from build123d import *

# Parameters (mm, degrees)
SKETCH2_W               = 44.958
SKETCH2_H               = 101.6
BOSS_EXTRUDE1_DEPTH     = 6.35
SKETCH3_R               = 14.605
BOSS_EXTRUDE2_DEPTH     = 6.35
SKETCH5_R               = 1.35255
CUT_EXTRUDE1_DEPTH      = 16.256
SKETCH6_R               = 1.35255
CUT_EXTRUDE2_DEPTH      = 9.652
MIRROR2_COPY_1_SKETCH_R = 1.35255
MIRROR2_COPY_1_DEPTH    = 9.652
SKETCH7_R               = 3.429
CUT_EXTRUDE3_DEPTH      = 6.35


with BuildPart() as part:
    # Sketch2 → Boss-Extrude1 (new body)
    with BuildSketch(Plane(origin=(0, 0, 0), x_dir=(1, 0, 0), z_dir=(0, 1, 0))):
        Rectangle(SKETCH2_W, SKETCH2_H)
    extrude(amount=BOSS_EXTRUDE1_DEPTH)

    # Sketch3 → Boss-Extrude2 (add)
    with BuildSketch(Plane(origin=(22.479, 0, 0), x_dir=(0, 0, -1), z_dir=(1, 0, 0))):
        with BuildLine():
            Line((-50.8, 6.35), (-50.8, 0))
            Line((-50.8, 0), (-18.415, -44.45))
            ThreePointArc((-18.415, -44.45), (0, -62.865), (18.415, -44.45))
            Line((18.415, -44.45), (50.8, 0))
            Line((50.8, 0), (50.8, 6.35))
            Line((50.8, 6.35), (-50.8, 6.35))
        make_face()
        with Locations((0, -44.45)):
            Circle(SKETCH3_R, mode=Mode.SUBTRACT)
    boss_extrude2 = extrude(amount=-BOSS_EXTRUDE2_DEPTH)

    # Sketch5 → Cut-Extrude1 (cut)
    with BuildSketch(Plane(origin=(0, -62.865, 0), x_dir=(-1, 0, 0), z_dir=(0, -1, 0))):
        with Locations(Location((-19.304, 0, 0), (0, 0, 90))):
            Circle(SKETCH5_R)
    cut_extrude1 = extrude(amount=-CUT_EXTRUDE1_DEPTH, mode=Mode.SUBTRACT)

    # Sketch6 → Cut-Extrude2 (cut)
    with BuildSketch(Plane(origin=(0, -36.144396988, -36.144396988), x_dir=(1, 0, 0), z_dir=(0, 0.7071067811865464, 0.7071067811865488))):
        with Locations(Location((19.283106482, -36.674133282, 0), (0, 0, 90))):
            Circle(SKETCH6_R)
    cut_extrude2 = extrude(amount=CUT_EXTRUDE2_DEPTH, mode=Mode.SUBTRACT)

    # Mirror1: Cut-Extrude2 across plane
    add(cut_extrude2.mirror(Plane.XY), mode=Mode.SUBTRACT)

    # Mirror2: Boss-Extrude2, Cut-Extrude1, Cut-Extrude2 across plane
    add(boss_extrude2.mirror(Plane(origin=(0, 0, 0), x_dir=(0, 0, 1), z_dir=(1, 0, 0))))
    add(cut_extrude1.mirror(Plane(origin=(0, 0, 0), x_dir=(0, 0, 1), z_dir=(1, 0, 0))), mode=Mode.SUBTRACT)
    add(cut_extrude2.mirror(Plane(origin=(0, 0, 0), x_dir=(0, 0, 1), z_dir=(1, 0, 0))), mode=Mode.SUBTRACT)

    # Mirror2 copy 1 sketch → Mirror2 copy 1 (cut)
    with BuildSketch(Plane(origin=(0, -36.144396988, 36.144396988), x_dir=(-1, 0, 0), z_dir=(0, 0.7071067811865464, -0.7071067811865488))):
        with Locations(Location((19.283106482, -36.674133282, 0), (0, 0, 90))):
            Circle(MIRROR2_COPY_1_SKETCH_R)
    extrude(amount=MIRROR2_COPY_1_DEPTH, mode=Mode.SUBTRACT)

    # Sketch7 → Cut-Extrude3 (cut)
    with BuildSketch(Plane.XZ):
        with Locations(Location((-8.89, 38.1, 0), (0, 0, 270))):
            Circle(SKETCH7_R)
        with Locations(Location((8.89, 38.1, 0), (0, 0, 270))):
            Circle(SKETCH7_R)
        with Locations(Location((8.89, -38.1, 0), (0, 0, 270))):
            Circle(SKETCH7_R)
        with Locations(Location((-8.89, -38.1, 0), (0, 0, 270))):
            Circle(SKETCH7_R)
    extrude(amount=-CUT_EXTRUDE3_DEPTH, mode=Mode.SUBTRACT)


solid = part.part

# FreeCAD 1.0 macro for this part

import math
import FreeCAD as App
import Part
import Sketcher
Q = App.Units.Quantity

doc = App.newDocument("Part")
body = doc.addObject("PartDesign::Body", "Body")

sketch1 = body.newObject("Sketcher::SketchObject", "Sketch")
sketch1.AttachmentSupport = (doc.getObject("XZ_Plane"), [""])
sketch1.MapMode = "FlatFace"
sketch1.addGeometry(Part.LineSegment(App.Vector(-22, -51, 0), App.Vector(-22, 51, 0)), False)
sketch1.addGeometry(Part.LineSegment(App.Vector(-22, 51, 0), App.Vector(22, 51, 0)), False)
sketch1.addGeometry(Part.LineSegment(App.Vector(22, 51, 0), App.Vector(22, -51, 0)), False)
sketch1.addGeometry(Part.LineSegment(App.Vector(22, -51, 0), App.Vector(-22, -51, 0)), False)
sketch1.addConstraint(Sketcher.Constraint("Coincident", 0, 2, 1, 1))
sketch1.addConstraint(Sketcher.Constraint("Coincident", 1, 2, 2, 1))
sketch1.addConstraint(Sketcher.Constraint("Coincident", 2, 2, 3, 1))
sketch1.addConstraint(Sketcher.Constraint("Coincident", 3, 2, 0, 1))
sketch1.addConstraint(Sketcher.Constraint("Vertical", 0))
sketch1.addConstraint(Sketcher.Constraint("Horizontal", 1))
sketch1.addConstraint(Sketcher.Constraint("Vertical", 2))
sketch1.addConstraint(Sketcher.Constraint("Horizontal", 3))
sketch1.addConstraint(Sketcher.Constraint("Symmetric", 0, 2, 2, 2, -1, 1))
sketch1.addConstraint(Sketcher.Constraint("DistanceY", 0, 1, 0, 2, Q("4 in")))
sketch1.addConstraint(Sketcher.Constraint("DistanceX", 1, 1, 1, 2, Q("1.77 in")))
pad1 = body.newObject("PartDesign::Pad", "Pad")
pad1.Profile = sketch1
pad1.Length = Q("0.25 in")
pad1.Reversed = True

sketch2 = body.newObject("Sketcher::SketchObject", "Sketch001")
sketch2.AttachmentSupport = (doc.getObject("YZ_Plane"), [""])
sketch2.MapMode = "FlatFace"
sketch2.AttachmentOffset = App.Placement(App.Vector(0, 0, 0.885 * 25.4), App.Rotation())
sketch2.addGeometry(Part.LineSegment(App.Vector(6, 51, 0), App.Vector(0, 51, 0)), False)
sketch2.addGeometry(Part.LineSegment(App.Vector(0, 51, 0), App.Vector(-44, 18, 0)), False)
sketch2.addGeometry(Part.ArcOfCircle(Part.Circle(App.Vector(-44, 0, 0), App.Vector(0, 0, 1), 18), math.radians(90), math.radians(270)), False)
sketch2.addGeometry(Part.LineSegment(App.Vector(-44, -18, 0), App.Vector(0, -51, 0)), False)
sketch2.addGeometry(Part.LineSegment(App.Vector(0, -51, 0), App.Vector(6, -51, 0)), False)
sketch2.addGeometry(Part.LineSegment(App.Vector(6, -51, 0), App.Vector(6, 51, 0)), False)
sketch2.addGeometry(Part.Circle(App.Vector(-44, 0, 0), App.Vector(0, 0, 1), 15), False)
sketch2.addConstraint(Sketcher.Constraint("Coincident", 0, 2, 1, 1))
sketch2.addConstraint(Sketcher.Constraint("Coincident", 1, 2, 2, 1))
sketch2.addConstraint(Sketcher.Constraint("Coincident", 2, 2, 3, 1))
sketch2.addConstraint(Sketcher.Constraint("Coincident", 3, 2, 4, 1))
sketch2.addConstraint(Sketcher.Constraint("Coincident", 4, 2, 5, 1))
sketch2.addConstraint(Sketcher.Constraint("Coincident", 5, 2, 0, 1))
sketch2.addConstraint(Sketcher.Constraint("Horizontal", 0))
sketch2.addConstraint(Sketcher.Constraint("Horizontal", 4))
sketch2.addConstraint(Sketcher.Constraint("Vertical", 5))
sketch2.addConstraint(Sketcher.Constraint("Coincident", 6, 3, 2, 3))
sketch2.addConstraint(Sketcher.Constraint("Symmetric", 0, 2, 3, 2, -1, 1))
sketch2.addConstraint(Sketcher.Constraint("Symmetric", 1, 2, 2, 2, -1))
sketch2.addConstraint(Sketcher.Constraint("PointOnObject", 0, 2, -2))
sketch2.addConstraint(Sketcher.Constraint("Vertical", 6, 3, 1, 2))
sketch2.addConstraint(Sketcher.Constraint("Diameter", 6, Q("1.15 in")))
sketch2.addConstraint(Sketcher.Constraint("DistanceY", 5, 1, 5, 2, Q("4 in")))
sketch2.addConstraint(Sketcher.Constraint("Radius", 2, Q("0.725 in")))
sketch2.addConstraint(Sketcher.Constraint("DistanceX", 2, 2, 4, 2, Q("2 in")))
sketch2.addConstraint(Sketcher.Constraint("DistanceX", 0, 2, 0, 1, Q("0.25 in")))
pad2 = body.newObject("PartDesign::Pad", "Pad001")
pad2.Profile = sketch2
pad2.Length = Q("0.25 in")
pad2.Reversed = True

sketch3 = body.newObject("Sketcher::SketchObject", "Sketch002")
sketch3.AttachmentSupport = (doc.getObject("XZ_Plane"), [""])
sketch3.MapMode = "FlatFace"
sketch3.AttachmentOffset = App.Placement(App.Vector(0, 0, 2.475 * 25.4), App.Rotation())
sketch3.addGeometry(Part.Circle(App.Vector(19.3, 0, 0), App.Vector(0, 0, 1), 1.4), False)
sketch3.addConstraint(Sketcher.Constraint("PointOnObject", 0, 3, -1))
sketch3.addConstraint(Sketcher.Constraint("Diameter", 0, Q("0.1065 in")))
sketch3.addConstraint(Sketcher.Constraint("DistanceX", -1, 1, 0, 3, Q("0.76 in")))
pocket1 = body.newObject("PartDesign::Pocket", "Pocket")
pocket1.Profile = sketch3
pocket1.Length = Q("0.64 in")

sketch4 = body.newObject("Sketcher::SketchObject", "Sketch003")
sketch4.Placement = App.Placement(App.Vector(0, -36.144397, -36.144397), App.Rotation(App.Vector(1, 0, 0), App.Vector(0, 0.707106781, -0.707106781), App.Vector(0, 0.707106781, 0.707106781), "ZXY"))
sketch4.addGeometry(Part.Circle(App.Vector(19.3, -36.7, 0), App.Vector(0, 0, 1), 1.4), False)
sketch4.addConstraint(Sketcher.Constraint("Diameter", 0, Q("0.1065 in")))
sketch4.addConstraint(Sketcher.Constraint("DistanceX", -1, 1, 0, 3, 19.283106))
sketch4.addConstraint(Sketcher.Constraint("DistanceY", 0, 3, -1, 1, 36.674133))
pocket2 = body.newObject("PartDesign::Pocket", "Pocket001")
pocket2.Profile = sketch4
pocket2.Length = Q("0.38 in")
pocket2.Reversed = True
doc.recompute()

mirrored = body.newObject("PartDesign::Mirrored", "Mirrored")
mirrored.Originals = [pocket2]
mirrored.MirrorPlane = (doc.getObject("XY_Plane"), [""])
body.Tip = mirrored
doc.recompute()

mirrored2 = body.newObject("PartDesign::Mirrored", "Mirrored001")
mirrored2.Originals = [pad2, pocket1, pocket2]
mirrored2.MirrorPlane = (doc.getObject("YZ_Plane"), [""])
body.Tip = mirrored2

sketch5 = body.newObject("Sketcher::SketchObject", "Sketch004")
sketch5.Placement = App.Placement(App.Vector(0, -36.144397, 36.144397), App.Rotation(App.Vector(-1, 0, 0), App.Vector(0, 0.707106781, 0.707106781), App.Vector(0, 0.707106781, -0.707106781), "ZXY"))
sketch5.addGeometry(Part.Circle(App.Vector(19.3, -36.7, 0), App.Vector(0, 0, 1), 1.4), False)
sketch5.addConstraint(Sketcher.Constraint("Diameter", 0, Q("0.1065 in")))
sketch5.addConstraint(Sketcher.Constraint("DistanceX", -1, 1, 0, 3, 19.283106))
sketch5.addConstraint(Sketcher.Constraint("DistanceY", 0, 3, -1, 1, 36.674133))
pocket3 = body.newObject("PartDesign::Pocket", "Pocket002")
pocket3.Profile = sketch5
pocket3.Length = Q("0.38 in")
pocket3.Reversed = True

sketch6 = body.newObject("Sketcher::SketchObject", "Sketch005")
sketch6.AttachmentSupport = (doc.getObject("XZ_Plane"), [""])
sketch6.MapMode = "FlatFace"
sketch6.addGeometry(Part.Circle(App.Vector(-8.9, 38.1, 0), App.Vector(0, 0, 1), 3.4), False)
sketch6.addGeometry(Part.Circle(App.Vector(8.9, 38.1, 0), App.Vector(0, 0, 1), 3.4), False)
sketch6.addGeometry(Part.Circle(App.Vector(8.9, -38.1, 0), App.Vector(0, 0, 1), 3.4), False)
sketch6.addGeometry(Part.Circle(App.Vector(-8.9, -38.1, 0), App.Vector(0, 0, 1), 3.4), False)
sketch6.addConstraint(Sketcher.Constraint("Equal", 0, 1))
sketch6.addConstraint(Sketcher.Constraint("Equal", 1, 2))
sketch6.addConstraint(Sketcher.Constraint("Equal", 2, 3))
sketch6.addConstraint(Sketcher.Constraint("Symmetric", 0, 3, 2, 3, -1, 1))
sketch6.addConstraint(Sketcher.Constraint("Symmetric", 1, 3, 3, 3, -1, 1))
sketch6.addConstraint(Sketcher.Constraint("Symmetric", 0, 3, 1, 3, -2))
sketch6.addConstraint(Sketcher.Constraint("Diameter", 0, Q("0.27 in")))
sketch6.addConstraint(Sketcher.Constraint("DistanceY", 2, 3, 1, 3, Q("3 in")))
sketch6.addConstraint(Sketcher.Constraint("DistanceX", 0, 3, 1, 3, Q("0.7 in")))
pocket4 = body.newObject("PartDesign::Pocket", "Pocket003")
pocket4.Profile = sketch6
pocket4.Length = Q("0.25 in")

doc.recompute()
